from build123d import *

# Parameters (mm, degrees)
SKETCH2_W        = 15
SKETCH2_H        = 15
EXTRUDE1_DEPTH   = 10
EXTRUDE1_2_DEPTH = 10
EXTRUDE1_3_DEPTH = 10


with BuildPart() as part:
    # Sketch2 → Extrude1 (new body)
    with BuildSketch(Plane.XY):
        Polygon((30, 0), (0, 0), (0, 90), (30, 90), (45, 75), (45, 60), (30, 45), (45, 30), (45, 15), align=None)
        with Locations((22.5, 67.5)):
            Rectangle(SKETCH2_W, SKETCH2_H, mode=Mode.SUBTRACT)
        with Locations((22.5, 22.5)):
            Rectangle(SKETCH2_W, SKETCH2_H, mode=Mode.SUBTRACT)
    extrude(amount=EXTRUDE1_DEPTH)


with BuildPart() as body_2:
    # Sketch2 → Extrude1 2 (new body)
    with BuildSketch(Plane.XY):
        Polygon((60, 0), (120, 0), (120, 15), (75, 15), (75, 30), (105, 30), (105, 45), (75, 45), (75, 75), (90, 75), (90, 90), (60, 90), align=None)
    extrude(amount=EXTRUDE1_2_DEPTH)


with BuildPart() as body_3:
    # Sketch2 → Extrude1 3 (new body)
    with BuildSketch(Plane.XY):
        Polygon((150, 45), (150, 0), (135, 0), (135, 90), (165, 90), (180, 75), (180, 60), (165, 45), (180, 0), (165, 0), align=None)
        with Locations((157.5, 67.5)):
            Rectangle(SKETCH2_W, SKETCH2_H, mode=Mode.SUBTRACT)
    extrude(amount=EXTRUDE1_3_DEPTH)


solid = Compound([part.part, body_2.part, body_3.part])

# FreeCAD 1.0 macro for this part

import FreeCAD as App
import Part
import Sketcher

V = App.Vector
Q = App.Units.Quantity


def add_polygon(sketch, points):
    """Adds a closed chain of lines whose ends are joined by coincident constraints."""
    first, n = sketch.GeometryCount, len(points)
    for a, b in zip(points, points[1:] + points[:1]):
        sketch.addGeometry(Part.LineSegment(App.Vector(*a, 0), App.Vector(*b, 0)), False)
    for i in range(n):
        sketch.addConstraint(Sketcher.Constraint("Coincident", first + i, 2, first + (i + 1) % n, 1))

doc = App.newDocument("Part")
body = doc.addObject("PartDesign::Body", "Body")

# Sketch on XY plane
sketch1 = body.newObject("Sketcher::SketchObject", "Sketch")
sketch1.AttachmentSupport = (doc.getObject("XY_Plane"), [""])
sketch1.MapMode = "FlatFace"
add_polygon(sketch1, [(0, 0), (30, 0), (45, 15), (45, 30), (30, 45), (45, 60), (45, 75), (30, 90), (0, 90)])  # lines 0-8
add_polygon(sketch1, [(15, 15), (15, 30), (30, 30), (30, 15)])  # lines 9-12
add_polygon(sketch1, [(15, 60), (15, 75), (30, 75), (30, 60)])  # lines 13-16
sketch1.addConstraint([
    Sketcher.Constraint("Horizontal", 0),
    Sketcher.Constraint("Vertical", 2),
    Sketcher.Constraint("Vertical", 5),
    Sketcher.Constraint("Horizontal", 7),
    Sketcher.Constraint("Vertical", 8),
    Sketcher.Constraint("Vertical", 9),
    Sketcher.Constraint("Horizontal", 10),
    Sketcher.Constraint("Vertical", 11),
    Sketcher.Constraint("Horizontal", 12),
    Sketcher.Constraint("Vertical", 13),
    Sketcher.Constraint("Horizontal", 14),
    Sketcher.Constraint("Vertical", 15),
    Sketcher.Constraint("Horizontal", 16),
    Sketcher.Constraint("Coincident", 8, 2, -1, 1),
    Sketcher.Constraint("Perpendicular", 1, 3),
    Sketcher.Constraint("Perpendicular", 3, 4),
    Sketcher.Constraint("Perpendicular", 4, 6),
    Sketcher.Constraint("Horizontal", 2, 2, 9, 2),
    Sketcher.Constraint("Horizontal", 1, 2, 11, 2),
    Sketcher.Constraint("Horizontal", 5, 2, 13, 2),
    Sketcher.Constraint("Horizontal", 4, 2, 15, 2),
    Sketcher.Constraint("Vertical", 0, 2, 3, 2),
    Sketcher.Constraint("Vertical", 2, 2, 4, 2),
    Sketcher.Constraint("Vertical", 3, 2, 6, 2),
    Sketcher.Constraint("Vertical", 6, 2, 10, 2),
    Sketcher.Constraint("Vertical", 12, 2, 13, 2),
    Sketcher.Constraint("Vertical", 11, 2, 14, 2),
    Sketcher.Constraint("Equal", 16, 2),
    Sketcher.Constraint("Equal", 2, 5),
    Sketcher.Constraint("Equal", 1, 3),
    Sketcher.Constraint("DistanceX", 0, 1, 0, 2, Q("30 mm")),
    Sketcher.Constraint("DistanceX", 10, 1, 10, 2, Q("15 mm")),
    Sketcher.Constraint("DistanceY", 8, 2, 8, 1, Q("90 mm")),
])
pad1 = body.newObject("PartDesign::Pad", "Pad")
pad1.Profile = sketch1
pad1.Length = 10
body2 = doc.addObject("PartDesign::Body", "Body001")

# Sketch on XY plane
sketch2 = body2.newObject("Sketcher::SketchObject", "Sketch001")
sketch2.AttachmentSupport = (doc.getObject("XY_Plane001"), [""])
sketch2.MapMode = "FlatFace"
add_polygon(sketch2, [(60, 0), (120, 0), (120, 15), (75, 15), (75, 30), (105, 30), (105, 45), (75, 45), (75, 75), (90, 75), (90, 90), (60, 90)])  # lines 0-11
sketch2.addConstraint([
    Sketcher.Constraint("Horizontal", 0),
    Sketcher.Constraint("Vertical", 1),
    Sketcher.Constraint("Horizontal", 2),
    Sketcher.Constraint("Vertical", 3),
    Sketcher.Constraint("Horizontal", 4),
    Sketcher.Constraint("Vertical", 5),
    Sketcher.Constraint("Horizontal", 6),
    Sketcher.Constraint("Vertical", 7),
    Sketcher.Constraint("Horizontal", 8),
    Sketcher.Constraint("Vertical", 9),
    Sketcher.Constraint("Horizontal", 10),
    Sketcher.Constraint("Vertical", 11),
    Sketcher.Constraint("PointOnObject", 0, 2, -1),
    Sketcher.Constraint("Vertical", 3, 2, 6, 2),
    Sketcher.Constraint("Equal", 6, 10),
    Sketcher.Constraint("Equal", 8, 1),
    Sketcher.Constraint("Equal", 1, 3),
    Sketcher.Constraint("Equal", 3, 5),
    Sketcher.Constraint("Equal", 10, 7),
    Sketcher.Constraint("Equal", 5, 9),
    Sketcher.Constraint("DistanceX", 0, 1, 0, 2, Q("60 mm")),
    Sketcher.Constraint("DistanceX", 2, 2, 2, 1, Q("45 mm")),
    Sketcher.Constraint("DistanceX", 4, 1, 4, 2, Q("30 mm")),
    Sketcher.Constraint("DistanceX", -1, 1, 0, 2, Q("120 mm")),
])
pad2 = body2.newObject("PartDesign::Pad", "Pad001")
pad2.Profile = sketch2
pad2.Length = 10
body3 = doc.addObject("PartDesign::Body", "Body002")

# Sketch on XY plane
sketch3 = body3.newObject("Sketcher::SketchObject", "Sketch002")
sketch3.AttachmentSupport = (doc.getObject("XY_Plane002"), [""])
sketch3.MapMode = "FlatFace"
add_polygon(sketch3, [(150, 0), (150, 45), (165, 0), (180, 0), (165, 45), (180, 60), (180, 75), (165, 90), (135, 90), (135, 0)])  # lines 0-9
add_polygon(sketch3, [(150, 60), (150, 75), (165, 75), (165, 60)])  # lines 10-13
sketch3.addConstraint([
    Sketcher.Constraint("Vertical", 0),
    Sketcher.Constraint("Horizontal", 2),
    Sketcher.Constraint("Vertical", 5),
    Sketcher.Constraint("Horizontal", 7),
    Sketcher.Constraint("Vertical", 8),
    Sketcher.Constraint("Horizontal", 9),
    Sketcher.Constraint("Vertical", 10),
    Sketcher.Constraint("Horizontal", 11),
    Sketcher.Constraint("Vertical", 12),
    Sketcher.Constraint("Horizontal", 13),
    Sketcher.Constraint("PointOnObject", 1, 2, -1),
    Sketcher.Constraint("PointOnObject", 8, 2, -1),
    Sketcher.Constraint("Parallel", 1, 3),
    Sketcher.Constraint("Perpendicular", 4, 6),
    Sketcher.Constraint("Horizontal", 0, 2, 3, 2),
    Sketcher.Constraint("Horizontal", 5, 2, 10, 2),
    Sketcher.Constraint("Horizontal", 4, 2, 12, 2),
    Sketcher.Constraint("Vertical", 1, 2, 3, 2),
    Sketcher.Constraint("Vertical", 2, 2, 4, 2),
    Sketcher.Constraint("Vertical", 3, 2, 6, 2),
    Sketcher.Constraint("Vertical", 9, 2, 10, 2),
    Sketcher.Constraint("Vertical", 6, 2, 11, 2),
    Sketcher.Constraint("Equal", 2, 9),
    Sketcher.Constraint("Equal", 13, 5),
    Sketcher.Constraint("Equal", 4, 6),
    Sketcher.Constraint("DistanceX", 2, 1, 2, 2, Q("15 mm")),
    Sketcher.Constraint("DistanceY", 0, 1, 0, 2, Q("45 mm")),
    Sketcher.Constraint("DistanceX", -1, 1, 0, 2, Q("150 mm")),
])
pad3 = body3.newObject("PartDesign::Pad", "Pad002")
pad3.Profile = sketch3
pad3.Length = 10

doc.recompute()
